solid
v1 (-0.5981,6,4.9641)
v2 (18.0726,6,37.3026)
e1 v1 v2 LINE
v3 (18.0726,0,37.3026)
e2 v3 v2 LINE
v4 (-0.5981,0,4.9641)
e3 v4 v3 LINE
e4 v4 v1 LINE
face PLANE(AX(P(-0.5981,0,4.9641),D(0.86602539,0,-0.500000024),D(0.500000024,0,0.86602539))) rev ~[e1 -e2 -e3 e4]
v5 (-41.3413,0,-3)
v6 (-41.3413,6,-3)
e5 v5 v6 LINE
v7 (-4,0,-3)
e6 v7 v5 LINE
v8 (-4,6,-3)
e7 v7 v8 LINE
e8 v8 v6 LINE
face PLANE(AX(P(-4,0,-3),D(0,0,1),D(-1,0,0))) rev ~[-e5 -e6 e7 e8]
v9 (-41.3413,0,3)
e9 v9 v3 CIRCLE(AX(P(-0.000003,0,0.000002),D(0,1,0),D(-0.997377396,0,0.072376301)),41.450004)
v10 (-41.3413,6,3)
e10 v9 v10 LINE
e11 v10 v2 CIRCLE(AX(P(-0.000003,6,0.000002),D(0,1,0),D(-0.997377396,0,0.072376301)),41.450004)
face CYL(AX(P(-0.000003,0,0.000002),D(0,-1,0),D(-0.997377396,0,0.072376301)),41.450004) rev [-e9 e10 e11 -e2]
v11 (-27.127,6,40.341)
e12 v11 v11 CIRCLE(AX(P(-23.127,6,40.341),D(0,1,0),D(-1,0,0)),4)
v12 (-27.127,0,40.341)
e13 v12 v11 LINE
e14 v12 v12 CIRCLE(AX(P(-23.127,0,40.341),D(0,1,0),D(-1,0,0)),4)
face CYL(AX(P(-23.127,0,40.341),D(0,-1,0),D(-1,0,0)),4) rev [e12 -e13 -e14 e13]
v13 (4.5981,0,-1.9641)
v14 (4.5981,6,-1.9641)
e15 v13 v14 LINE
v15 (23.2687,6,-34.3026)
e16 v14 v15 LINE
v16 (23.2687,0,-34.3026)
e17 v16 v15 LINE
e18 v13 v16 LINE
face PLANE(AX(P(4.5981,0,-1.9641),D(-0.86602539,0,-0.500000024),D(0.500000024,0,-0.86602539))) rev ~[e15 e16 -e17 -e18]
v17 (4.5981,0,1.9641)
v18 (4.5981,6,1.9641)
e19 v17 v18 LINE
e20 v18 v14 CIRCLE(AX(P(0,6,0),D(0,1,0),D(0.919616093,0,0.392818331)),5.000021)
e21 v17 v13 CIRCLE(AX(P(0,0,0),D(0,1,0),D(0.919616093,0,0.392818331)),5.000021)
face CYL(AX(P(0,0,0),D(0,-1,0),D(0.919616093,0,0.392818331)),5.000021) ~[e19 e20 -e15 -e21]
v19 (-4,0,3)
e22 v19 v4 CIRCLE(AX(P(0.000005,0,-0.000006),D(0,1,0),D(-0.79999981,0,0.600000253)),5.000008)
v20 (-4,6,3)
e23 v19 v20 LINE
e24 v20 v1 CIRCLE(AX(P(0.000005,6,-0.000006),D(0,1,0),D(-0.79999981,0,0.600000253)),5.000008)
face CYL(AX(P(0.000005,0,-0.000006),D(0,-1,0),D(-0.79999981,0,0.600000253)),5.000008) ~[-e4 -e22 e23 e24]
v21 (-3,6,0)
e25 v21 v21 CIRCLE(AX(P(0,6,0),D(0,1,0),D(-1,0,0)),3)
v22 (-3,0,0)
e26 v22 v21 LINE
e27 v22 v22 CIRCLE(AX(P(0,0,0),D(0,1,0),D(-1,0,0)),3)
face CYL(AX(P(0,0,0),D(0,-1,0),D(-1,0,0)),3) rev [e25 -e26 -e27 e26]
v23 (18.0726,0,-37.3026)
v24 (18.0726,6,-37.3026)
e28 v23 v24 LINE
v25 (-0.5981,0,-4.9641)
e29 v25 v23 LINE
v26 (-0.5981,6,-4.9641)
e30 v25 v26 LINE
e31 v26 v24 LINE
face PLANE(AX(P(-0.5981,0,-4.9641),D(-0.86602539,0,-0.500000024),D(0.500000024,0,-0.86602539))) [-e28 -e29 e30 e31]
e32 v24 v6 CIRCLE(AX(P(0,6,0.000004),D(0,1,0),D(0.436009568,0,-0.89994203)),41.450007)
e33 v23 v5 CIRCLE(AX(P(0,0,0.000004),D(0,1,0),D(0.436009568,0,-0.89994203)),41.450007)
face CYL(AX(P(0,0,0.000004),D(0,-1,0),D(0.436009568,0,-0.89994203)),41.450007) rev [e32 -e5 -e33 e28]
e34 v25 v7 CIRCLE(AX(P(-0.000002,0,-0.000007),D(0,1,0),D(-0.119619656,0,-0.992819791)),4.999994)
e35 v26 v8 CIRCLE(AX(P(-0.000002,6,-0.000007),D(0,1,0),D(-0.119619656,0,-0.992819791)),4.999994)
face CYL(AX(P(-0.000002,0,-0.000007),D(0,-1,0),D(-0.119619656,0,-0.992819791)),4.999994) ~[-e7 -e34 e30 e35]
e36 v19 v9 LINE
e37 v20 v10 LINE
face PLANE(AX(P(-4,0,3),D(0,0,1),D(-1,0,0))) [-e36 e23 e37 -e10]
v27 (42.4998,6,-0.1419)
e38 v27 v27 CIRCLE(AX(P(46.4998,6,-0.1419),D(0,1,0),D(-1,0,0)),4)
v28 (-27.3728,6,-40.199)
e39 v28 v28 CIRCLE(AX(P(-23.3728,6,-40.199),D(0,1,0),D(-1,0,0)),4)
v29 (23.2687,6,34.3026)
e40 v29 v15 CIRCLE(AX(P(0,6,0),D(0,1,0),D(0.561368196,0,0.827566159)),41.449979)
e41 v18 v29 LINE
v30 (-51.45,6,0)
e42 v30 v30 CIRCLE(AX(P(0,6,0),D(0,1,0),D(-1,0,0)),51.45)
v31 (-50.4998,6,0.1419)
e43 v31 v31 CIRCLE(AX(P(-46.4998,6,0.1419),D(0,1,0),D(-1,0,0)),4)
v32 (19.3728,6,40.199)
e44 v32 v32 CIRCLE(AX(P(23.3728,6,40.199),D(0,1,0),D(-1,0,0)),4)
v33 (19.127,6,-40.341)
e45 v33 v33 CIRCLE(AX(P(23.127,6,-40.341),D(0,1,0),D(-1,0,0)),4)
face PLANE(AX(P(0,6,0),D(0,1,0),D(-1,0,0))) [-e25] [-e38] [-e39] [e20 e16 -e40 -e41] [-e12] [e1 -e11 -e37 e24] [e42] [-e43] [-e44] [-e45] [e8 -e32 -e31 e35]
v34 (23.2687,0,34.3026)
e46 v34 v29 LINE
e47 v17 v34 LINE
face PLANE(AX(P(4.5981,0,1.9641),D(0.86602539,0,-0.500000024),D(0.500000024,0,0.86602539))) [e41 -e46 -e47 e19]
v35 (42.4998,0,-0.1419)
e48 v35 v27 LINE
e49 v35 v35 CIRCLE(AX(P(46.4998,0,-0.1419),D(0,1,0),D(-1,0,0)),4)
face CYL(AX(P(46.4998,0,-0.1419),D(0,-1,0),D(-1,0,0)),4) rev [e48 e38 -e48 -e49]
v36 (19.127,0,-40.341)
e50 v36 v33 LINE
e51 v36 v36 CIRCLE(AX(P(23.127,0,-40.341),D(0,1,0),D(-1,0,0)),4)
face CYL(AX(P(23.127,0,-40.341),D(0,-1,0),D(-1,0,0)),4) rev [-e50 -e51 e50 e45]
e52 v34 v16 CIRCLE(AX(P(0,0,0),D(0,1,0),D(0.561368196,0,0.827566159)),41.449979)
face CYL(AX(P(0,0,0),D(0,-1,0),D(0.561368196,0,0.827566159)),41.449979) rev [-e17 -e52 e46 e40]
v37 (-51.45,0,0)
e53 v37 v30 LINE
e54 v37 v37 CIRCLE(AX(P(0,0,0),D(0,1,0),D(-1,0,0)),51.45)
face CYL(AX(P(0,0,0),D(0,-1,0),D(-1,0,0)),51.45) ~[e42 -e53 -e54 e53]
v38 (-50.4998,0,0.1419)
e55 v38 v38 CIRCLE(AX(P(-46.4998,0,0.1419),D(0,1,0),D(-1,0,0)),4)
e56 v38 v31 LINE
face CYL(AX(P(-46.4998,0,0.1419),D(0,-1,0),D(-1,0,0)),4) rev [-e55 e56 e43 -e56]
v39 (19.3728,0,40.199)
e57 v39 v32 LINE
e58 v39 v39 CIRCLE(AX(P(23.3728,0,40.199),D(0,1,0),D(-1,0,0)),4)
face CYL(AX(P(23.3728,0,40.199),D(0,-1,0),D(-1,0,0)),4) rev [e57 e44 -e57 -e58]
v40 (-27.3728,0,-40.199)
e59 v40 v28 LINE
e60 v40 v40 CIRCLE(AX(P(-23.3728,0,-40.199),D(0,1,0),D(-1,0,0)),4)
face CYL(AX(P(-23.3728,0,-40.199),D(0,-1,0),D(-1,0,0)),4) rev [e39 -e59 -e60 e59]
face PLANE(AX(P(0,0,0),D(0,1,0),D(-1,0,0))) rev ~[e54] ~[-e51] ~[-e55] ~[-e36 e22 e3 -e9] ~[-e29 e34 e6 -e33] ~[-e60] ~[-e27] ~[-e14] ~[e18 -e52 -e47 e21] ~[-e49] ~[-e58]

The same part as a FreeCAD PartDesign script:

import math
import FreeCAD as App
import Part
import Sketcher
from FreeCAD import Vector
Q = App.Units.Quantity

doc = App.newDocument("Part")
body = doc.addObject("PartDesign::Body", "Body")

# Sketch on XZ plane
sketch1 = doc.addObject("Sketcher::SketchObject", "Sketch")
body.addObject(sketch1)
sketch1.AttachmentSupport = (doc.XZ_Plane, [""])
sketch1.MapMode = "FlatFace"
sketch1.addGeometry([
    Part.Circle(Vector(0, 0, 0), Vector(0, 0, 1), 51.45),  # 0
    Part.Circle(Vector(23.127, -40.341, 0), Vector(0, 0, 1), 4),  # 1
    Part.Circle(Vector(46.4998, -0.1419, 0), Vector(0, 0, 1), 4),  # 2
    Part.Circle(Vector(-23.3728, -40.199, 0), Vector(0, 0, 1), 4),  # 3
    Part.ArcOfCircle(Part.Circle(Vector(0, 0, 0), Vector(0, 0, 1), 5), math.radians(-143.130102), math.radians(-96.870171)),  # 4
    Part.LineSegment(Vector(-4, -3, 0), Vector(-41.3413, -3, 0)),  # 5
    Part.ArcOfCircle(Part.Circle(Vector(0, 0, 0), Vector(0, 0, 1), 41.450007), math.radians(-175.849512), math.radians(-64.150446)),  # 6
    Part.LineSegment(Vector(18.072557, -37.302625, 0), Vector(-0.5981, -4.9641, 0)),  # 7
    Part.ArcOfCircle(Part.Circle(Vector(0, 0, 0), Vector(0, 0, 1), 5.000021), math.radians(-23.129978), math.radians(23.129978)),  # 8
    Part.LineSegment(Vector(4.5981, -1.9641, 0), Vector(23.268732, -34.302581, 0)),  # 9
    Part.ArcOfCircle(Part.Circle(Vector(0, 0, 0), Vector(0, 0, 1), 41.449979), math.radians(-55.849529), math.radians(55.849529)),  # 10
    Part.LineSegment(Vector(23.268732, 34.302581, 0), Vector(4.5981, 1.9641, 0)),  # 11
    Part.Circle(Vector(23.3728, 40.199, 0), Vector(0, 0, 1), 4),  # 12
    Part.Circle(Vector(0, 0, 0), Vector(0, 0, 1), 3),  # 13
    Part.ArcOfCircle(Part.Circle(Vector(0, 0, 0), Vector(0, 0, 1), 5.000001), math.radians(96.870171), math.radians(143.130102)),  # 14
    Part.LineSegment(Vector(-0.5981, 4.9641, 0), Vector(18.072557, 37.302625, 0)),  # 15
    Part.ArcOfCircle(Part.Circle(Vector(0, 0, 0), Vector(0, 0, 1), 41.450004), math.radians(64.150446), math.radians(175.849512)),  # 16
    Part.LineSegment(Vector(-41.3413, 3, 0), Vector(-4, 3, 0)),  # 17
    Part.Circle(Vector(-46.4998, 0.1419, 0), Vector(0, 0, 1), 4),  # 18
    Part.Circle(Vector(-23.127, 40.341, 0), Vector(0, 0, 1), 4),  # 19
], False)
sketch1.addConstraint([
    Sketcher.Constraint("Coincident", 4, 1, 5, 1),
    Sketcher.Constraint("Coincident", 5, 2, 6, 1),
    Sketcher.Constraint("Coincident", 6, 2, 7, 1),
    Sketcher.Constraint("Coincident", 7, 2, 4, 2),
    Sketcher.Constraint("Coincident", 8, 1, 9, 1),
    Sketcher.Constraint("Coincident", 9, 2, 10, 1),
    Sketcher.Constraint("Coincident", 10, 2, 11, 1),
    Sketcher.Constraint("Coincident", 11, 2, 8, 2),
    Sketcher.Constraint("Coincident", 14, 1, 15, 1),
    Sketcher.Constraint("Coincident", 15, 2, 16, 1),
    Sketcher.Constraint("Coincident", 16, 2, 17, 1),
    Sketcher.Constraint("Coincident", 17, 2, 14, 2),
    Sketcher.Constraint("Horizontal", 5),
    Sketcher.Constraint("Horizontal", 17),
    Sketcher.Constraint("Coincident", 0, 3, -1, 1),
    Sketcher.Constraint("Coincident", 4, 3, -1, 1),
    Sketcher.Constraint("Coincident", 6, 3, -1, 1),
    Sketcher.Constraint("Coincident", 8, 3, -1, 1),
    Sketcher.Constraint("Coincident", 10, 3, -1, 1),
    Sketcher.Constraint("Coincident", 13, 3, -1, 1),
    Sketcher.Constraint("Coincident", 14, 3, -1, 1),
    Sketcher.Constraint("Coincident", 16, 3, -1, 1),
    Sketcher.Constraint("Equal", 1, 2),
    Sketcher.Constraint("Equal", 2, 3),
    Sketcher.Constraint("Equal", 4, 8),
    Sketcher.Constraint("Equal", 6, 10),
    Sketcher.Constraint("Equal", 3, 12),
    Sketcher.Constraint("Equal", 8, 14),
    Sketcher.Constraint("Equal", 10, 16),
    Sketcher.Constraint("Equal", 12, 18),
    Sketcher.Constraint("Equal", 18, 19),
    Sketcher.Constraint("Symmetric", 3, 3, 12, 3, -1, 1),
    Sketcher.Constraint("Symmetric", 2, 3, 18, 3, -1, 1),
    Sketcher.Constraint("Symmetric", 1, 3, 19, 3, -1, 1),
    Sketcher.Constraint("Parallel", 7, 9),
    Sketcher.Constraint("Parallel", 11, 15),
    Sketcher.Constraint("Vertical", 9, 2, 10, 2),
    Sketcher.Constraint("Vertical", 8, 1, 11, 2),
    Sketcher.Constraint("Vertical", 7, 2, 14, 1),
    Sketcher.Constraint("Vertical", 5, 2, 16, 2),
    Sketcher.Constraint("Equal", 7, 9),
    Sketcher.Constraint("Diameter", 1, Q("8 mm")),
    Sketcher.Constraint("Diameter", 13, Q("6 mm")),
    Sketcher.Constraint("Diameter", 0, Q("102.9 mm")),
    Sketcher.Constraint("Radius", 4, Q("5 mm")),
    Sketcher.Constraint("DistanceY", 5, 2, 16, 2, Q("6 mm")),
    Sketcher.Constraint("Angle", 7, Q("120 deg")),
    Sketcher.Constraint("Radius", 6, Q("41.45 mm")),
    Sketcher.Constraint("DistanceY", 6, 2, 9, 2, Q("3 mm")),
    Sketcher.Constraint("DistanceX", -1, 1, 2, 3, Q("46.4998 mm")),
    Sketcher.Constraint("DistanceX", 3, 3, 1, 3, Q("46.4998 mm")),
    Sketcher.Constraint("DistanceX", -1, 1, 1, 3, Q("23.127 mm")),
    Sketcher.Constraint("DistanceY", 1, 3, -1, 1, Q("40.341 mm")),
    Sketcher.Constraint("DistanceY", 2, 3, -1, 1, Q("0.142 mm")),
    Sketcher.Constraint("DistanceY", 3, 3, -1, 1, Q("40.199 mm")),
])
pad1 = doc.addObject("PartDesign::Pad", "Pad")
body.addObject(pad1)
pad1.Profile = sketch1
pad1.Length = 6
pad1.Reversed = True

doc.recompute()
